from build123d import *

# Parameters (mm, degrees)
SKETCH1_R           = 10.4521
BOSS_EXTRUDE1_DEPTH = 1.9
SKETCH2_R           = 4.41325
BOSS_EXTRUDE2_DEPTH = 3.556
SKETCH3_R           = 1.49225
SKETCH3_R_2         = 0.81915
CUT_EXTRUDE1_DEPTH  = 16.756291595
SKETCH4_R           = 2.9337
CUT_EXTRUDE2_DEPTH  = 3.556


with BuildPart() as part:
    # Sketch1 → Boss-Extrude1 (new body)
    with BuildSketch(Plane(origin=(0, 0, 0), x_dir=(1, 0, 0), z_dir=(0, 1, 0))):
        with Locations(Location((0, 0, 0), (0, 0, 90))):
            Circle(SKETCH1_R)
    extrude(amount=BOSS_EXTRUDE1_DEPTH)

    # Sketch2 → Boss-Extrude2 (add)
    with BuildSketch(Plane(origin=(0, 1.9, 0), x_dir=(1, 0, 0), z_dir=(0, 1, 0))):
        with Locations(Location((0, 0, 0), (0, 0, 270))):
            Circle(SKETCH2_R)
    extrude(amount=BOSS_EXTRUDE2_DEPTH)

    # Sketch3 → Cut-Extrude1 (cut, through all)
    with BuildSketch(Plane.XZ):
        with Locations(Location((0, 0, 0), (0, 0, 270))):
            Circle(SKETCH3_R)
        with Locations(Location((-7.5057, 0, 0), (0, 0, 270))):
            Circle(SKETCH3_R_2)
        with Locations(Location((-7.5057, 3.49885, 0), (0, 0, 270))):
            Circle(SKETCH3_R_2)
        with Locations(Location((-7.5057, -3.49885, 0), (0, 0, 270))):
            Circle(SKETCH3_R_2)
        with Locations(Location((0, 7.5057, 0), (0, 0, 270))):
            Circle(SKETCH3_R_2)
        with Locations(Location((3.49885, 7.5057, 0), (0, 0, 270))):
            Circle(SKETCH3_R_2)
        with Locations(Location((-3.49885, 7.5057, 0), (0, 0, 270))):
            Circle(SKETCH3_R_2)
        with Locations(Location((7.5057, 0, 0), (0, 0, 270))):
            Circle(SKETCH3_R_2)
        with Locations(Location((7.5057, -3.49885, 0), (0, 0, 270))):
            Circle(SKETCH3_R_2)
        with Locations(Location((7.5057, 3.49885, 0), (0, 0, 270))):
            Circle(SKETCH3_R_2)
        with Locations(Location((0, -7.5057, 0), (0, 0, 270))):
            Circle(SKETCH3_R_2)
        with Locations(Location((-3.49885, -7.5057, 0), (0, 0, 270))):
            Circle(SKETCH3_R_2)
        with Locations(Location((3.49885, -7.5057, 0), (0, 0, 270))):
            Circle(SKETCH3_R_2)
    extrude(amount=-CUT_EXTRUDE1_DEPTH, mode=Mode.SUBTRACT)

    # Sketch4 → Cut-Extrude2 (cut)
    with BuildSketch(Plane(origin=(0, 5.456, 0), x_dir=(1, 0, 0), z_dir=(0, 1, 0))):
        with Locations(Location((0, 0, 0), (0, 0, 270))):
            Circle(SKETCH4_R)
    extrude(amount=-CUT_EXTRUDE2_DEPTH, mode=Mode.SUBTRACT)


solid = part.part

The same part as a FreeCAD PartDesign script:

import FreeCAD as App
import Part
import Sketcher

V = App.Vector
Q = App.Units.Quantity

doc = App.newDocument("Part")
body = doc.addObject("PartDesign::Body", "Body")

# Sketch on XZ plane
sketch1 = body.newObject("Sketcher::SketchObject", "Sketch")
sketch1.AttachmentSupport = (doc.getObject("XZ_Plane"), [""])
sketch1.MapMode = "FlatFace"
sketch1.addGeometry(Part.Circle(V(0, 0, 0), V(0, 0, 1), 10), False)
sketch1.addConstraint([
    Sketcher.Constraint("Coincident", 0, 3, -1, 1),
    Sketcher.Constraint("Diameter", 0, Q("0.823 in")),
])
pad1 = body.newObject("PartDesign::Pad", "Pad")
pad1.Profile = sketch1
pad1.Length = 1.9
pad1.Reversed = True

# Sketch on XZ plane
sketch2 = body.newObject("Sketcher::SketchObject", "Sketch001")
sketch2.AttachmentSupport = (doc.getObject("XZ_Plane"), [""])
sketch2.MapMode = "FlatFace"
sketch2.AttachmentOffset = App.Placement(V(0, 0, -1.9), App.Rotation())
sketch2.addGeometry(Part.Circle(V(0, 0, 0), V(0, 0, 1), 4.4), False)
sketch2.addConstraint([
    Sketcher.Constraint("Coincident", 0, 3, -1, 1),
    Sketcher.Constraint("Diameter", 0, Q("0.3475 in")),
])
pad2 = body.newObject("PartDesign::Pad", "Pad001")
pad2.Profile = sketch2
pad2.Length = Q("0.14 in")
pad2.Reversed = True

# Sketch on XZ plane
sketch3 = body.newObject("Sketcher::SketchObject", "Sketch002")
sketch3.AttachmentSupport = (doc.getObject("XZ_Plane"), [""])
sketch3.MapMode = "FlatFace"
sketch3.addGeometry([
    Part.Circle(V(0, 0, 0), V(0, 0, 1), 1.5),  # 0
    Part.Circle(V(-7.5, 0, 0), V(0, 0, 1), 0.8),  # 1
    Part.Circle(V(-7.5, 3.5, 0), V(0, 0, 1), 0.8),  # 2
    Part.Circle(V(-7.5, -3.5, 0), V(0, 0, 1), 0.8),  # 3
    Part.Circle(V(0, 7.5, 0), V(0, 0, 1), 0.8),  # 4
    Part.Circle(V(3.5, 7.5, 0), V(0, 0, 1), 0.8),  # 5
    Part.Circle(V(-3.5, 7.5, 0), V(0, 0, 1), 0.8),  # 6
    Part.Circle(V(7.5, 0, 0), V(0, 0, 1), 0.8),  # 7
    Part.Circle(V(7.5, -3.5, 0), V(0, 0, 1), 0.8),  # 8
    Part.Circle(V(7.5, 3.5, 0), V(0, 0, 1), 0.8),  # 9
    Part.Circle(V(0, -7.5, 0), V(0, 0, 1), 0.8),  # 10
    Part.Circle(V(-3.5, -7.5, 0), V(0, 0, 1), 0.8),  # 11
    Part.Circle(V(3.5, -7.5, 0), V(0, 0, 1), 0.8),  # 12
], False)
sketch3.addConstraint([
    Sketcher.Constraint("Coincident", 0, 3, -1, 1),
    Sketcher.Constraint("Equal", 1, 2),
    Sketcher.Constraint("Equal", 2, 3),
    Sketcher.Constraint("Equal", 3, 4),
    Sketcher.Constraint("Equal", 4, 5),
    Sketcher.Constraint("Equal", 5, 6),
    Sketcher.Constraint("Equal", 6, 7),
    Sketcher.Constraint("Equal", 7, 8),
    Sketcher.Constraint("Equal", 8, 9),
    Sketcher.Constraint("Equal", 9, 10),
    Sketcher.Constraint("Equal", 10, 11),
    Sketcher.Constraint("Equal", 11, 12),
    Sketcher.Constraint("Symmetric", 1, 3, 7, 3, -1, 1),
    Sketcher.Constraint("Symmetric", 2, 3, 8, 3, -1, 1),
    Sketcher.Constraint("Symmetric", 3, 3, 9, 3, -1, 1),
    Sketcher.Constraint("Symmetric", 4, 3, 10, 3, -1, 1),
    Sketcher.Constraint("Symmetric", 5, 3, 11, 3, -1, 1),
    Sketcher.Constraint("Symmetric", 6, 3, 12, 3, -1, 1),
    Sketcher.Constraint("Symmetric", 5, 3, 6, 3, -2),
    Sketcher.Constraint("Symmetric", 3, 3, 8, 3, -2),
    Sketcher.Constraint("PointOnObject", 1, 3, -1),
    Sketcher.Constraint("PointOnObject", 4, 3, -2),
    Sketcher.Constraint("Horizontal", 4, 3, 5, 3),
    Sketcher.Constraint("Vertical", 1, 3, 2, 3),
    Sketcher.Constraint("Diameter", 0, Q("0.1175 in")),
    Sketcher.Constraint("Diameter", 1, Q("0.0645 in")),
    Sketcher.Constraint("DistanceX", 1, 3, 7, 3, Q("0.591 in")),
    Sketcher.Constraint("DistanceY", -1, 1, 4, 3, Q("0.2955 in")),
    Sketcher.Constraint("DistanceY", 3, 3, 2, 3, Q("0.2755 in")),
    Sketcher.Constraint("DistanceX", 6, 3, 5, 3, Q("0.2755 in")),
])
pocket1 = body.newObject("PartDesign::Pocket", "Pocket")
pocket1.Profile = sketch3
pocket1.Type = "ThroughAll"

# Sketch on XZ plane
sketch4 = body.newObject("Sketcher::SketchObject", "Sketch003")
sketch4.AttachmentSupport = (doc.getObject("XZ_Plane"), [""])
sketch4.MapMode = "FlatFace"
sketch4.AttachmentOffset = App.Placement(V(0, 0, -5.456), App.Rotation())
sketch4.addGeometry(Part.Circle(V(0, 0, 0), V(0, 0, 1), 2.9), False)
sketch4.addConstraint([
    Sketcher.Constraint("Coincident", 0, 3, -1, 1),
    Sketcher.Constraint("Diameter", 0, Q("0.231 in")),
])
pocket2 = body.newObject("PartDesign::Pocket", "Pocket001")
pocket2.Profile = sketch4
pocket2.Length = Q("0.14 in")
pocket2.Reversed = True

doc.recompute()
